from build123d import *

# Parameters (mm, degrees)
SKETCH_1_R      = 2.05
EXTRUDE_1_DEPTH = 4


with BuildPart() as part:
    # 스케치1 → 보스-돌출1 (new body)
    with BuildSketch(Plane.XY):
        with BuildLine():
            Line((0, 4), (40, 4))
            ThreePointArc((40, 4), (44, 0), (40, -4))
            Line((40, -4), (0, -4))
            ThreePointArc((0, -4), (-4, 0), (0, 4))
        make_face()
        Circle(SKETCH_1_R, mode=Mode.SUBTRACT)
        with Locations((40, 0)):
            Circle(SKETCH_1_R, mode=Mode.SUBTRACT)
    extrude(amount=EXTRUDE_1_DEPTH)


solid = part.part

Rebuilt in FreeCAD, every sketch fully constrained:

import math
import FreeCAD as App
import Part
import Sketcher

V = App.Vector

doc = App.newDocument("Part")
body = doc.addObject("PartDesign::Body", "Body")

# Sketch on XY plane
sketch1 = body.newObject("Sketcher::SketchObject", "Sketch")
sketch1.AttachmentSupport = (doc.getObject("XY_Plane"), [""])
sketch1.MapMode = "FlatFace"
sketch1.addGeometry(Part.LineSegment(V(40, 4, 0), V(0, 4, 0)), False)
sketch1.addGeometry(Part.ArcOfCircle(Part.Circle(V(0, 0, 0), V(0, 0, 1), 4), math.radians(90), math.radians(270)), False)
sketch1.addGeometry(Part.LineSegment(V(0, -4, 0), V(40, -4, 0)), False)
sketch1.addGeometry(Part.ArcOfCircle(Part.Circle(V(40, 0, 0), V(0, 0, 1), 4), math.radians(-90), math.radians(90)), False)
sketch1.addGeometry(Part.Circle(V(40, 0, 0), V(0, 0, 1), 2.05), False)
sketch1.addGeometry(Part.Circle(V(0, 0, 0), V(0, 0, 1), 2.05), False)
sketch1.addConstraint(Sketcher.Constraint("Tangent", 0, 2, 1, 1))
sketch1.addConstraint(Sketcher.Constraint("Tangent", 1, 2, 2, 1))
sketch1.addConstraint(Sketcher.Constraint("Tangent", 2, 2, 3, 1))
sketch1.addConstraint(Sketcher.Constraint("Tangent", 3, 2, 0, 1))
sketch1.addConstraint(Sketcher.Constraint("Horizontal", 0))
sketch1.addConstraint(Sketcher.Constraint("Horizontal", 2))
sketch1.addConstraint(Sketcher.Constraint("Coincident", 1, 3, -1, 1))
sketch1.addConstraint(Sketcher.Constraint("Coincident", 5, 3, -1, 1))
sketch1.addConstraint(Sketcher.Constraint("Coincident", 4, 3, 3, 3))
sketch1.addConstraint(Sketcher.Constraint("Equal", 4, 5))
sketch1.addConstraint(Sketcher.Constraint("Radius", 1, 4.0))
sketch1.addConstraint(Sketcher.Constraint("Diameter", 4, 4.1))
sketch1.addConstraint(Sketcher.Constraint("DistanceX", 0, 2, 0, 1, 40.0))
pad1 = body.newObject("PartDesign::Pad", "Pad")
pad1.Profile = sketch1
pad1.Length = 4

doc.recompute()
